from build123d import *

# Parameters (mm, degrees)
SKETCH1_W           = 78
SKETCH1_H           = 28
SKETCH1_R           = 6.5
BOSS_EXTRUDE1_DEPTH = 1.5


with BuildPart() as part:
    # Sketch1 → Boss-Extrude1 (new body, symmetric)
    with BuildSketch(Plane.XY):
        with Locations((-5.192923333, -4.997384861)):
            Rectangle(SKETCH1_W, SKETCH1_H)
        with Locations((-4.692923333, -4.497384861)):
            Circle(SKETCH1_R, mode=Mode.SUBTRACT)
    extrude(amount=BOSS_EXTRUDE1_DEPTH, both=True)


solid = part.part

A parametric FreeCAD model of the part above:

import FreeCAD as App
import Part
import Sketcher
from FreeCAD import Vector
Q = App.Units.Quantity


def add_polygon(sketch, points):
    """Adds a closed chain of lines whose ends are joined by coincident constraints."""
    first, n = sketch.GeometryCount, len(points)
    for a, b in zip(points, points[1:] + points[:1]):
        sketch.addGeometry(Part.LineSegment(App.Vector(*a, 0), App.Vector(*b, 0)), False)
    for i in range(n):
        sketch.addConstraint(Sketcher.Constraint("Coincident", first + i, 2, first + (i + 1) % n, 1))

doc = App.newDocument("Part")
params = doc.addObject("Spreadsheet::Sheet", "Params")
for row, (alias, value) in enumerate([
    ("sketch1_diameter", "13 mm"),
    ("sketch1_width", "78 mm"),
    ("sketch1_height", "28 mm"),
    ("pad1_length", "3 mm"),
], start=1):
    params.set(f"A{row}", alias)
    params.set(f"B{row}", "=" + value)
    params.setAlias(f"B{row}", alias)

body = doc.addObject("PartDesign::Body", "Body")

# Sketch on XY plane
sketch1 = body.newObject("Sketcher::SketchObject", "Sketch")
sketch1.AttachmentSupport = (doc.getObject("XY_Plane"), [""])
sketch1.MapMode = "FlatFace"
add_polygon(sketch1, [(-44, 9), (-44, -19), (34, -19), (34, 9)])  # lines 0-3
sketch1.addGeometry(Part.Circle(Vector(-5, -4, 0), Vector(0, 0, 1), 6), False)  # 4
sketch1.addConstraint(Sketcher.Constraint("Vertical", 0))
sketch1.addConstraint(Sketcher.Constraint("Horizontal", 1))
sketch1.addConstraint(Sketcher.Constraint("Vertical", 2))
sketch1.addConstraint(Sketcher.Constraint("Horizontal", 3))
sketch1.addConstraint(Sketcher.Constraint("Diameter", 4, Q("13 mm")))
sketch1.addConstraint(Sketcher.Constraint("DistanceX", 1, 1, 1, 2, Q("78 mm")))
sketch1.addConstraint(Sketcher.Constraint("DistanceY", 0, 2, 0, 1, Q("28 mm")))
sketch1.addConstraint(Sketcher.Constraint("DistanceX", 0, 2, 4, 3, Q("39.5 mm")))
sketch1.addConstraint(Sketcher.Constraint("DistanceY", 0, 2, 4, 3, Q("14.5 mm")))
sketch1.addConstraint(Sketcher.Constraint("DistanceX", 4, 3, -1, 1, Q("4.692923 mm")))
sketch1.addConstraint(Sketcher.Constraint("DistanceY", 4, 3, -1, 1, Q("4.497385 mm")))
sketch1.setExpression("Constraints[8]", "Params.sketch1_diameter")
sketch1.setExpression("Constraints[9]", "Params.sketch1_width")
sketch1.setExpression("Constraints[10]", "Params.sketch1_height")
pad1 = body.newObject("PartDesign::Pad", "Pad")
pad1.Profile = sketch1
pad1.setExpression("Length", "Params.pad1_length")
pad1.Midplane = True

doc.recompute()
